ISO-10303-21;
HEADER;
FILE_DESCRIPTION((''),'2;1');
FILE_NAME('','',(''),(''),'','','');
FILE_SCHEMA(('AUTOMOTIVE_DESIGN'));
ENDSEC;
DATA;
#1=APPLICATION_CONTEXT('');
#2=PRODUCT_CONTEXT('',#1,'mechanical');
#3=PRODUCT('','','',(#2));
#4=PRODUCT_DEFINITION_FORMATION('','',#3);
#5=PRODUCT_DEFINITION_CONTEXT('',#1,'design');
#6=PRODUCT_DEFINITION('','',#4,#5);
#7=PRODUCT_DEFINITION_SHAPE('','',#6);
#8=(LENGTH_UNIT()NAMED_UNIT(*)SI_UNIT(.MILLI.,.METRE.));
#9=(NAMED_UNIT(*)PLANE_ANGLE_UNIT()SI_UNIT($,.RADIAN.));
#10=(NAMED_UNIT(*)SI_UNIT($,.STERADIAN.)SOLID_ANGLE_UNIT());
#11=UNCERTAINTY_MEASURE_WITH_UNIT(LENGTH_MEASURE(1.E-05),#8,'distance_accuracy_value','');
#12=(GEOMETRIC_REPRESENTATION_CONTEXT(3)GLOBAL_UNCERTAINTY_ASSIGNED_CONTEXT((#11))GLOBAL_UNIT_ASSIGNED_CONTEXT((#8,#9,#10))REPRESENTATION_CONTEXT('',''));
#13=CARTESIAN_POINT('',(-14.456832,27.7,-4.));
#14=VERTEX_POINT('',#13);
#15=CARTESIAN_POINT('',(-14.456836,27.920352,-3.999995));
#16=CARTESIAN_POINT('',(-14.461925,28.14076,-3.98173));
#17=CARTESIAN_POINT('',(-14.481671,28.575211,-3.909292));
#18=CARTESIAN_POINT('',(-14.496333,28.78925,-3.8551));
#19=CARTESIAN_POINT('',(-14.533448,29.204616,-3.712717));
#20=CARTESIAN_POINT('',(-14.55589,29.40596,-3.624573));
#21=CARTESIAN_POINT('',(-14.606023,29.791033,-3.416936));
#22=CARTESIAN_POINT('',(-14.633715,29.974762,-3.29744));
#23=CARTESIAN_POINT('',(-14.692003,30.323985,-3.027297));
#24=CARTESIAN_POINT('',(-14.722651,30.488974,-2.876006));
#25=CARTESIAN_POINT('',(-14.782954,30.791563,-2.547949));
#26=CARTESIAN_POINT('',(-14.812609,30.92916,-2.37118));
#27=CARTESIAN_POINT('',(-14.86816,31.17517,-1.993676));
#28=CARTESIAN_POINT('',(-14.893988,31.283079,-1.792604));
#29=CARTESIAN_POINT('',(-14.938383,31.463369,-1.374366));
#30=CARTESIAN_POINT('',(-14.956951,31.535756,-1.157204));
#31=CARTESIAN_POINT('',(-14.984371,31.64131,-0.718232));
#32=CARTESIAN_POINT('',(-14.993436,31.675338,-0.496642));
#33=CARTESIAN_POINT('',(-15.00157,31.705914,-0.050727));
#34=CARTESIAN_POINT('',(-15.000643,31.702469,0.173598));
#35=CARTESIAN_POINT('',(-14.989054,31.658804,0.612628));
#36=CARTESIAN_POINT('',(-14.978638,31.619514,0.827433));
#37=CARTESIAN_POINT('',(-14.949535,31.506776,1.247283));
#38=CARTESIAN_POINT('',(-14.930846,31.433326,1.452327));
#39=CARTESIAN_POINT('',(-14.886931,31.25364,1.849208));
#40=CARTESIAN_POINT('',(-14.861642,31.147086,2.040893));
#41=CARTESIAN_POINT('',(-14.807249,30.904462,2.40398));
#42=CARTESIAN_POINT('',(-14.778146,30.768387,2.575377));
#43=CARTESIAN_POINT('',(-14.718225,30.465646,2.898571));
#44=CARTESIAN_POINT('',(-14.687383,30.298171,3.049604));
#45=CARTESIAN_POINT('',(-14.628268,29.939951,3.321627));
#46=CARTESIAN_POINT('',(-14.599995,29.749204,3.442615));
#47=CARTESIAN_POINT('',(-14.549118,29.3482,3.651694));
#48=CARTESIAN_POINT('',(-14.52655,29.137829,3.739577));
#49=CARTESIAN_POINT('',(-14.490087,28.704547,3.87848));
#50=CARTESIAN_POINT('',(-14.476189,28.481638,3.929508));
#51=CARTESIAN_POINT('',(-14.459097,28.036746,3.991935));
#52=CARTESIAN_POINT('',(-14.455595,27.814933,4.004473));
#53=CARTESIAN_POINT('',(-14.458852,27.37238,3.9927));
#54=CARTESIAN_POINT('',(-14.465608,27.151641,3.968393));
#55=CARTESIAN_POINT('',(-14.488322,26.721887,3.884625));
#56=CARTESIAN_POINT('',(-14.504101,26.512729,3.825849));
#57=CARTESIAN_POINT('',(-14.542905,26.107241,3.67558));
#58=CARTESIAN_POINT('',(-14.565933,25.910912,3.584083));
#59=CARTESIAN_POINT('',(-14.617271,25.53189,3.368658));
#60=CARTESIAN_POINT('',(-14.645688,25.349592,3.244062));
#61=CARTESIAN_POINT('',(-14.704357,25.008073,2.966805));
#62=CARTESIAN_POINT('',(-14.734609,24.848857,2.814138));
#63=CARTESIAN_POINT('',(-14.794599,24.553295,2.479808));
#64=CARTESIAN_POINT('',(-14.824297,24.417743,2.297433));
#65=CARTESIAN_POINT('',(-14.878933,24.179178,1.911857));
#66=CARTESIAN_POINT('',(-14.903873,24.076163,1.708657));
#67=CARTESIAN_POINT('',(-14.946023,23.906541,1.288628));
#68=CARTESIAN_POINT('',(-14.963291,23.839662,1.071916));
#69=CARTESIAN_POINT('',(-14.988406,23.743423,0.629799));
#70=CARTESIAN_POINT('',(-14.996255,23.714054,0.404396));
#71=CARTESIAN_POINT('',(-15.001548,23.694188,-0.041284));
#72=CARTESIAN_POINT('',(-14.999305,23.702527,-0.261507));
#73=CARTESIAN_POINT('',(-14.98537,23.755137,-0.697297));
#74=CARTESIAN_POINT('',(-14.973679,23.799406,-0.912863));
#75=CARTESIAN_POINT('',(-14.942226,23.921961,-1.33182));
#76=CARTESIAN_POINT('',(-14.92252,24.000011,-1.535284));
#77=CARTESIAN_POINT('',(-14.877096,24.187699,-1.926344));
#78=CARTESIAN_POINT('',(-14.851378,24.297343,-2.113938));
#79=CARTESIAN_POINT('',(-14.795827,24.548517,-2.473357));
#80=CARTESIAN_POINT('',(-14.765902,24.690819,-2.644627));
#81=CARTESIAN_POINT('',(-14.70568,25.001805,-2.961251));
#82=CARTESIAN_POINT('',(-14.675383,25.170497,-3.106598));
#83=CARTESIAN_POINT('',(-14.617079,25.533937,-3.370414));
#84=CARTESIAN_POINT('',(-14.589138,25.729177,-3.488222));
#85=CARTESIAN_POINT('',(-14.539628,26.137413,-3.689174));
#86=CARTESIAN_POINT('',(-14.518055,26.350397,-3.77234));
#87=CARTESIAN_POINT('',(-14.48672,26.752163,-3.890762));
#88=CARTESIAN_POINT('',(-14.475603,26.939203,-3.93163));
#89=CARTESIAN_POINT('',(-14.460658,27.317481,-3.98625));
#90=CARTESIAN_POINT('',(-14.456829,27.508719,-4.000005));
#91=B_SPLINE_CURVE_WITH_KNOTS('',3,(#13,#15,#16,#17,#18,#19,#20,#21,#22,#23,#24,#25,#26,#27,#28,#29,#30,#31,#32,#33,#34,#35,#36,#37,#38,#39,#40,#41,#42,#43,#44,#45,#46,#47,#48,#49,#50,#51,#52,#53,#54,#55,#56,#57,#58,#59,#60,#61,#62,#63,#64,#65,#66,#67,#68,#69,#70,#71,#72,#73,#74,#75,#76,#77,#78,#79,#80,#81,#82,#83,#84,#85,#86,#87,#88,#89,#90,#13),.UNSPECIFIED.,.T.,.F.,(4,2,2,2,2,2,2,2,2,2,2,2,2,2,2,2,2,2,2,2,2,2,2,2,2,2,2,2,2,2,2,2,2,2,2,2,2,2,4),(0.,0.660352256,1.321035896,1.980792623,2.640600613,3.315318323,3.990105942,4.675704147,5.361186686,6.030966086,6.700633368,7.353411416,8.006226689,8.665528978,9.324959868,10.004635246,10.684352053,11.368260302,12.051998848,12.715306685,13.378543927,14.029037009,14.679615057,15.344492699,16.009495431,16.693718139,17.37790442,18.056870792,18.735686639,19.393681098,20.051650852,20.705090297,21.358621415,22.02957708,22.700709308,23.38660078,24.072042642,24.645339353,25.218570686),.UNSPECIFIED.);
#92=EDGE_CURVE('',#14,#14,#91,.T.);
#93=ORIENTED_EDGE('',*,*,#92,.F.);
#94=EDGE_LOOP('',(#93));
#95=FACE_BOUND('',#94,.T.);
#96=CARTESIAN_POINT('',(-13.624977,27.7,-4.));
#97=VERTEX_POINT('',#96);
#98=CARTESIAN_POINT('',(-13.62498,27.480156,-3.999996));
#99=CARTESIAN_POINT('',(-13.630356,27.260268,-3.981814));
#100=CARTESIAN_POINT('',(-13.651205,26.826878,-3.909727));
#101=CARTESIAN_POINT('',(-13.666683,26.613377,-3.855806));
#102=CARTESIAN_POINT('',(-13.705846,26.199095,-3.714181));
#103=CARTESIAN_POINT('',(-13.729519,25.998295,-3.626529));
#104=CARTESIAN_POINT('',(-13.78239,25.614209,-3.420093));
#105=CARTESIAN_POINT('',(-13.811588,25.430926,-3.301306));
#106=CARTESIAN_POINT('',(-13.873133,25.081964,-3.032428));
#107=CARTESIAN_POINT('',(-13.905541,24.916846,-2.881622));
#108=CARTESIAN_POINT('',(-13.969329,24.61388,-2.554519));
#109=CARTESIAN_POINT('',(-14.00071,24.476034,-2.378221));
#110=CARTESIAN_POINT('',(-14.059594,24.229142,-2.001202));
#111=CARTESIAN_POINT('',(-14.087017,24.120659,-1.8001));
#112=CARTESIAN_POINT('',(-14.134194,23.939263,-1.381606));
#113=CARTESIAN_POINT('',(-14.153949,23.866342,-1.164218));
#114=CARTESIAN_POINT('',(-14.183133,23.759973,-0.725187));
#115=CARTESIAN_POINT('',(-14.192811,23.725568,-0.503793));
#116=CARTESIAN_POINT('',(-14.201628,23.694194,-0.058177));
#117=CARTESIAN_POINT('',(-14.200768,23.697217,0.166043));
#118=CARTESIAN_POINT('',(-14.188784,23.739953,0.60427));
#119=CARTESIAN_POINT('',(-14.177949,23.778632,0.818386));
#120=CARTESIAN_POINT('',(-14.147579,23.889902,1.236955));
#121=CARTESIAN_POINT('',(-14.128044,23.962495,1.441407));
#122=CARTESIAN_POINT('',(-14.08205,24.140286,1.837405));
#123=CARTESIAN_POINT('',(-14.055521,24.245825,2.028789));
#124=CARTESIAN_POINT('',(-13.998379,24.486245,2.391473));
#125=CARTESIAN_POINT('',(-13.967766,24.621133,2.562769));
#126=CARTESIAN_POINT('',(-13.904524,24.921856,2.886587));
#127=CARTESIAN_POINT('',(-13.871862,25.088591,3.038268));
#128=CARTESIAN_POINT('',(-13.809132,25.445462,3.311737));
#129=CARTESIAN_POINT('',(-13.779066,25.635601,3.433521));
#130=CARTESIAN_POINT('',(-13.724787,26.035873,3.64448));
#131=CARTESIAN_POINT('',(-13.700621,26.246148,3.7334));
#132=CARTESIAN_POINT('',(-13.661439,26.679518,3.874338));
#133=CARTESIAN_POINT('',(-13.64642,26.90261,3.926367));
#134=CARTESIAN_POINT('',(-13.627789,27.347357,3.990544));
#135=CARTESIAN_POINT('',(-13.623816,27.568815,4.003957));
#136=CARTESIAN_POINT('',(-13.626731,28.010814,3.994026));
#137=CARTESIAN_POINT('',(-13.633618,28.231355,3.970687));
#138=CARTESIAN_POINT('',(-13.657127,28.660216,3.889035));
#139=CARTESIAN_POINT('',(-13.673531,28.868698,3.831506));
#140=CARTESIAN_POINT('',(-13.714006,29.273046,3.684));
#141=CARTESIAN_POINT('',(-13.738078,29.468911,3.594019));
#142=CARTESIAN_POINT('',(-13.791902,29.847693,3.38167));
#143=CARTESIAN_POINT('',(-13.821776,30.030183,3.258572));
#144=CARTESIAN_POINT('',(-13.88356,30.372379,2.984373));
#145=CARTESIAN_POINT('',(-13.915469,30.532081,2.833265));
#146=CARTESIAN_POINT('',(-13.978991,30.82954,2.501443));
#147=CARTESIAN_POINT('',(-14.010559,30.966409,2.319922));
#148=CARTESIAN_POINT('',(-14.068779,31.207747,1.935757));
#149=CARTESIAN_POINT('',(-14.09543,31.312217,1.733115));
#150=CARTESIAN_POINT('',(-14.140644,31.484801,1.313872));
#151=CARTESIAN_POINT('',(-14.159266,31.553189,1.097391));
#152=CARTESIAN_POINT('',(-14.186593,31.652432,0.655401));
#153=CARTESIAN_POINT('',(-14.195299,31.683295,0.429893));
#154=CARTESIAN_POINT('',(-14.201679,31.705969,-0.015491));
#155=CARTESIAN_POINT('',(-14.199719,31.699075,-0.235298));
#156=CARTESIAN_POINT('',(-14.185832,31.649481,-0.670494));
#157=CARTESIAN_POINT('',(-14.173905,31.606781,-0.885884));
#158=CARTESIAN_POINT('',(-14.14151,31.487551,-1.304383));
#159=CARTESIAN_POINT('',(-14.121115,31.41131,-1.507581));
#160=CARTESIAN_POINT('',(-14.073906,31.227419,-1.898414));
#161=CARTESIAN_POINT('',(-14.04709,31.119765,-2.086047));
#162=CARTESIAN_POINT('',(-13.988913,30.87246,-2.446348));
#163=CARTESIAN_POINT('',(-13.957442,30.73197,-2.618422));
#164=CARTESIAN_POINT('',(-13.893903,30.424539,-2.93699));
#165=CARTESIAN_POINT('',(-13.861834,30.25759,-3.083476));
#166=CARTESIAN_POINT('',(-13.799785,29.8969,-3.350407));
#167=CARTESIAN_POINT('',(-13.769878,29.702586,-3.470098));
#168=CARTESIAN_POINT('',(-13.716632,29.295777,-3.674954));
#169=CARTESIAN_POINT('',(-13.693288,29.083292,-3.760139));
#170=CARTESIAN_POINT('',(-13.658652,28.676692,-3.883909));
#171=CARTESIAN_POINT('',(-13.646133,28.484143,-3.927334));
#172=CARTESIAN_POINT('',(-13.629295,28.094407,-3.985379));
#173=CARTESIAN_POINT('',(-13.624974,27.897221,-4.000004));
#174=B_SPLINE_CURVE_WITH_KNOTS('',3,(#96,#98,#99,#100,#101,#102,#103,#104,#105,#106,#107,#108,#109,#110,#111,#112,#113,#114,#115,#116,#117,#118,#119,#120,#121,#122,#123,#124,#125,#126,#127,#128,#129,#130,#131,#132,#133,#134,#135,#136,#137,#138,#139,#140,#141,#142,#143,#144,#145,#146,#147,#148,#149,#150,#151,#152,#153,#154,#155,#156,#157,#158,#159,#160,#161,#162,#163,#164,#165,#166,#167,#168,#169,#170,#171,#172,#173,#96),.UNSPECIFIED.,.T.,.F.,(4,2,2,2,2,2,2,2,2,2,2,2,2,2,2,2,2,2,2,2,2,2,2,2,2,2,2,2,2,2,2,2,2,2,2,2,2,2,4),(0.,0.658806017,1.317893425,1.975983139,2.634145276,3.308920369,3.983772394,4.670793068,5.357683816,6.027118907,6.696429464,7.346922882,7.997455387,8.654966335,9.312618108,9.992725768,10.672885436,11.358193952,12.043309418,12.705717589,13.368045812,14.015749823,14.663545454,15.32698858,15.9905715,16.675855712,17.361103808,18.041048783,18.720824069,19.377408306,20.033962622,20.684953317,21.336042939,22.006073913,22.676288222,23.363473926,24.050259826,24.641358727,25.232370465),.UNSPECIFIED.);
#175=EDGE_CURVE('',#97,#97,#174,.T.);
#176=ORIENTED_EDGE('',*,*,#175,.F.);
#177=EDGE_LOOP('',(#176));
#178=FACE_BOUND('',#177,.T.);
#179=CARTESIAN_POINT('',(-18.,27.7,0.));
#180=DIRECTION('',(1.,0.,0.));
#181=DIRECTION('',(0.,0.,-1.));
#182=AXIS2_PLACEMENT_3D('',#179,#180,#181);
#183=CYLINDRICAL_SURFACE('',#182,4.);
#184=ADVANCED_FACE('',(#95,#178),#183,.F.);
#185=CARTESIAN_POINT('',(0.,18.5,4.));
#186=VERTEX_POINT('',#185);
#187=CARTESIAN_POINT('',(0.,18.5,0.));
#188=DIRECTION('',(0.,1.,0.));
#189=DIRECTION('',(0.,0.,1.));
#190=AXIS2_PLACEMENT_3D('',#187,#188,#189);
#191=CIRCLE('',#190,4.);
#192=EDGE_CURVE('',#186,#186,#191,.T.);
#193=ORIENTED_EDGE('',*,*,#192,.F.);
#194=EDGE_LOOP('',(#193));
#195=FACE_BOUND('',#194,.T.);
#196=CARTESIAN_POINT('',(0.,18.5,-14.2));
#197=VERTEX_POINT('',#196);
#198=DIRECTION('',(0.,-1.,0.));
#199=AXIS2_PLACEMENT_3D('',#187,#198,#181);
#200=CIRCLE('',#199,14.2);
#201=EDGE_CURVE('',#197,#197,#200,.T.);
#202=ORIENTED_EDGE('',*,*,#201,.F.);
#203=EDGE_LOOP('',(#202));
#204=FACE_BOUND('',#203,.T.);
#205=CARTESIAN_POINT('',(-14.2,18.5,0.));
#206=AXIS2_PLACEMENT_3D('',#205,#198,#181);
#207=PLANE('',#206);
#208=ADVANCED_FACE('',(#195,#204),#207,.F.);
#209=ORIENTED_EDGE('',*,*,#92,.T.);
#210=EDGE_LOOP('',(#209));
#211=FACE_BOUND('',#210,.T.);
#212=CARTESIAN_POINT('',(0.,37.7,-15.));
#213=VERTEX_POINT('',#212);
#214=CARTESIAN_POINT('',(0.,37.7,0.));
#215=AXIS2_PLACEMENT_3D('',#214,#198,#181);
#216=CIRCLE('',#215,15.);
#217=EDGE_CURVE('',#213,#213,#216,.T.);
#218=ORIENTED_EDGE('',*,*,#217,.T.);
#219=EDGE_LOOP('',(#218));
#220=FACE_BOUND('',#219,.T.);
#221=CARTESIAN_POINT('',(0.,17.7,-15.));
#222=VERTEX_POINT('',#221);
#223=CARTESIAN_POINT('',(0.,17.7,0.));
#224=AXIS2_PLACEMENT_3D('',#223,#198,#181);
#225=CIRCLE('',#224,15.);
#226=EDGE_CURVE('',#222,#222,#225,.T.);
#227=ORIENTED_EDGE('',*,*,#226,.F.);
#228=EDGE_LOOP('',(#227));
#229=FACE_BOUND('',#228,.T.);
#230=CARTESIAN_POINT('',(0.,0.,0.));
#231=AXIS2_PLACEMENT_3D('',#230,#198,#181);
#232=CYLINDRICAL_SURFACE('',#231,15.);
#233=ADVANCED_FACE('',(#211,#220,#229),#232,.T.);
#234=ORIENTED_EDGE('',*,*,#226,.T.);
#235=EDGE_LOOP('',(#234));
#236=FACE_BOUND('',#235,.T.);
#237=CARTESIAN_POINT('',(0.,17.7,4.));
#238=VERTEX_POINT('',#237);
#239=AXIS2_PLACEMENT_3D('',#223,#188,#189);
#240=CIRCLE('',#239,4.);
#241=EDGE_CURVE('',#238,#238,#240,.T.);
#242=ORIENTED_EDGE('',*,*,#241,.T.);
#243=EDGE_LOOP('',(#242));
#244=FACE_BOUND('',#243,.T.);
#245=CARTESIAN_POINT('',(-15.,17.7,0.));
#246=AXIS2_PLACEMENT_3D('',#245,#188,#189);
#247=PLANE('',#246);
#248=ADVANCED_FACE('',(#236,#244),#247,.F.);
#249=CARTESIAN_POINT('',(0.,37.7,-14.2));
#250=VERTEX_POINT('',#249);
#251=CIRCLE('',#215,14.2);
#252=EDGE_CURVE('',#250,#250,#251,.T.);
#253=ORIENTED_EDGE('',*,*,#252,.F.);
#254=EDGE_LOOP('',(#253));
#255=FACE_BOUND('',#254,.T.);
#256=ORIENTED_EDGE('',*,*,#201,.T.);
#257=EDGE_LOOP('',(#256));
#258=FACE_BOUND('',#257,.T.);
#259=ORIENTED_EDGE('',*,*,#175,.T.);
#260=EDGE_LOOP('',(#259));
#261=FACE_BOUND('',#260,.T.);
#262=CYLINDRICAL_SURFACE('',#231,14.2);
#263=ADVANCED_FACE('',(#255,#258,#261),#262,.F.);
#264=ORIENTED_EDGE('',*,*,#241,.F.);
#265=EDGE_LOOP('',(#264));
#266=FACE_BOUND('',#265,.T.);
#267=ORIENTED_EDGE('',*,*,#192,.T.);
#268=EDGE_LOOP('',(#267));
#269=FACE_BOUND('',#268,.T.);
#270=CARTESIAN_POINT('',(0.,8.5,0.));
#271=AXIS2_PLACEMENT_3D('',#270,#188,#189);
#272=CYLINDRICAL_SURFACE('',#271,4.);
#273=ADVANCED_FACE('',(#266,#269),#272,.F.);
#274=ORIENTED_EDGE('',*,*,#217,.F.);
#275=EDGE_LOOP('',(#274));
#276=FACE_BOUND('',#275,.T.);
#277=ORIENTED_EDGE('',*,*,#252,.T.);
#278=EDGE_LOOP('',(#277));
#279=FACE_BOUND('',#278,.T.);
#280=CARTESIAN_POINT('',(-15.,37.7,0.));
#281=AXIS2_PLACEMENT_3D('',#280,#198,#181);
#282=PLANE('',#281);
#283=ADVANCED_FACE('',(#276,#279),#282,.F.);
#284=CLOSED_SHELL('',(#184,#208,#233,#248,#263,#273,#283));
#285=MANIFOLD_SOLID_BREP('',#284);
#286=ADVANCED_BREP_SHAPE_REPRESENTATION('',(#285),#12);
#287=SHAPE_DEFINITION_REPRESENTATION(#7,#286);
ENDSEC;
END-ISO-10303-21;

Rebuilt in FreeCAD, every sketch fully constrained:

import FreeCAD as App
import Part
import Sketcher

doc = App.newDocument("Part")
body = doc.addObject("PartDesign::Body", "Body")

sketch1 = body.newObject("Sketcher::SketchObject", "Sketch")
sketch1.AttachmentSupport = (doc.getObject("XY_Plane"), [""])
sketch1.MapMode = "FlatFace"
sketch1.addGeometry([
    Part.LineSegment(App.Vector(-15, 37.7, 0), App.Vector(-15, 17.7, 0)),
    Part.LineSegment(App.Vector(-15, 17.7, 0), App.Vector(0, 17.7, 0)),
    Part.LineSegment(App.Vector(0, 17.7, 0), App.Vector(0, 18.5, 0)),
    Part.LineSegment(App.Vector(0, 18.5, 0), App.Vector(-14.2, 18.5, 0)),
    Part.LineSegment(App.Vector(-14.2, 18.5, 0), App.Vector(-14.2, 37.7, 0)),
    Part.LineSegment(App.Vector(-14.2, 37.7, 0), App.Vector(-15, 37.7, 0)),
], False)
sketch1.addConstraint([
    Sketcher.Constraint("Coincident", 0, 2, 1, 1),
    Sketcher.Constraint("Coincident", 1, 2, 2, 1),
    Sketcher.Constraint("Coincident", 2, 2, 3, 1),
    Sketcher.Constraint("Coincident", 3, 2, 4, 1),
    Sketcher.Constraint("Coincident", 4, 2, 5, 1),
    Sketcher.Constraint("Coincident", 5, 2, 0, 1),
    Sketcher.Constraint("Vertical", 0),
    Sketcher.Constraint("Horizontal", 1),
    Sketcher.Constraint("Vertical", 2),
    Sketcher.Constraint("Horizontal", 3),
    Sketcher.Constraint("Vertical", 4),
    Sketcher.Constraint("Horizontal", 5),
    Sketcher.Constraint("PointOnObject", 1, 2, -2),
    Sketcher.Constraint("Equal", 5, 2),
    Sketcher.Constraint("DistanceX", 1, 1, 1, 2, 15.0),
    Sketcher.Constraint("DistanceY", 0, 2, 0, 1, 20.0),
    Sketcher.Constraint("DistanceX", 3, 2, 3, 1, 14.2),
    Sketcher.Constraint("DistanceY", -1, 1, 0, 2, 17.7),
])
revolution = body.newObject("PartDesign::Revolution", "Revolution")
revolution.Profile = sketch1
revolution.ReferenceAxis = (sketch1, ["V_Axis"])
revolution.Angle = 360

sketch2 = body.newObject("Sketcher::SketchObject", "Sketch001")
sketch2.AttachmentSupport = (doc.getObject("XZ_Plane"), [""])
sketch2.MapMode = "FlatFace"
sketch2.AttachmentOffset = App.Placement(App.Vector(0, 0, -18.5), App.Rotation())
sketch2.addGeometry(Part.Circle(App.Vector(0, 0, 0), App.Vector(0, 0, 1), 4), False)
sketch2.addConstraint([
    Sketcher.Constraint("Coincident", 0, 3, -1, 1),
    Sketcher.Constraint("Diameter", 0, 8.0),
])
pocket1 = body.newObject("PartDesign::Pocket", "Pocket")
pocket1.Profile = sketch2
pocket1.Length = 10
pocket1.Reversed = True

sketch3 = body.newObject("Sketcher::SketchObject", "Sketch002")
sketch3.AttachmentSupport = (doc.getObject("YZ_Plane"), [""])
sketch3.MapMode = "FlatFace"
sketch3.addGeometry(Part.Circle(App.Vector(27.7, 0, 0), App.Vector(0, 0, 1), 4), False)
sketch3.addConstraint([
    Sketcher.Constraint("PointOnObject", 0, 3, -1),
    Sketcher.Constraint("Diameter", 0, 8.0),
    Sketcher.Constraint("DistanceX", -1, 1, 0, 3, 27.7),
])
pocket2 = body.newObject("PartDesign::Pocket", "Pocket001")
pocket2.Profile = sketch3
pocket2.Length = 18

doc.recompute()
